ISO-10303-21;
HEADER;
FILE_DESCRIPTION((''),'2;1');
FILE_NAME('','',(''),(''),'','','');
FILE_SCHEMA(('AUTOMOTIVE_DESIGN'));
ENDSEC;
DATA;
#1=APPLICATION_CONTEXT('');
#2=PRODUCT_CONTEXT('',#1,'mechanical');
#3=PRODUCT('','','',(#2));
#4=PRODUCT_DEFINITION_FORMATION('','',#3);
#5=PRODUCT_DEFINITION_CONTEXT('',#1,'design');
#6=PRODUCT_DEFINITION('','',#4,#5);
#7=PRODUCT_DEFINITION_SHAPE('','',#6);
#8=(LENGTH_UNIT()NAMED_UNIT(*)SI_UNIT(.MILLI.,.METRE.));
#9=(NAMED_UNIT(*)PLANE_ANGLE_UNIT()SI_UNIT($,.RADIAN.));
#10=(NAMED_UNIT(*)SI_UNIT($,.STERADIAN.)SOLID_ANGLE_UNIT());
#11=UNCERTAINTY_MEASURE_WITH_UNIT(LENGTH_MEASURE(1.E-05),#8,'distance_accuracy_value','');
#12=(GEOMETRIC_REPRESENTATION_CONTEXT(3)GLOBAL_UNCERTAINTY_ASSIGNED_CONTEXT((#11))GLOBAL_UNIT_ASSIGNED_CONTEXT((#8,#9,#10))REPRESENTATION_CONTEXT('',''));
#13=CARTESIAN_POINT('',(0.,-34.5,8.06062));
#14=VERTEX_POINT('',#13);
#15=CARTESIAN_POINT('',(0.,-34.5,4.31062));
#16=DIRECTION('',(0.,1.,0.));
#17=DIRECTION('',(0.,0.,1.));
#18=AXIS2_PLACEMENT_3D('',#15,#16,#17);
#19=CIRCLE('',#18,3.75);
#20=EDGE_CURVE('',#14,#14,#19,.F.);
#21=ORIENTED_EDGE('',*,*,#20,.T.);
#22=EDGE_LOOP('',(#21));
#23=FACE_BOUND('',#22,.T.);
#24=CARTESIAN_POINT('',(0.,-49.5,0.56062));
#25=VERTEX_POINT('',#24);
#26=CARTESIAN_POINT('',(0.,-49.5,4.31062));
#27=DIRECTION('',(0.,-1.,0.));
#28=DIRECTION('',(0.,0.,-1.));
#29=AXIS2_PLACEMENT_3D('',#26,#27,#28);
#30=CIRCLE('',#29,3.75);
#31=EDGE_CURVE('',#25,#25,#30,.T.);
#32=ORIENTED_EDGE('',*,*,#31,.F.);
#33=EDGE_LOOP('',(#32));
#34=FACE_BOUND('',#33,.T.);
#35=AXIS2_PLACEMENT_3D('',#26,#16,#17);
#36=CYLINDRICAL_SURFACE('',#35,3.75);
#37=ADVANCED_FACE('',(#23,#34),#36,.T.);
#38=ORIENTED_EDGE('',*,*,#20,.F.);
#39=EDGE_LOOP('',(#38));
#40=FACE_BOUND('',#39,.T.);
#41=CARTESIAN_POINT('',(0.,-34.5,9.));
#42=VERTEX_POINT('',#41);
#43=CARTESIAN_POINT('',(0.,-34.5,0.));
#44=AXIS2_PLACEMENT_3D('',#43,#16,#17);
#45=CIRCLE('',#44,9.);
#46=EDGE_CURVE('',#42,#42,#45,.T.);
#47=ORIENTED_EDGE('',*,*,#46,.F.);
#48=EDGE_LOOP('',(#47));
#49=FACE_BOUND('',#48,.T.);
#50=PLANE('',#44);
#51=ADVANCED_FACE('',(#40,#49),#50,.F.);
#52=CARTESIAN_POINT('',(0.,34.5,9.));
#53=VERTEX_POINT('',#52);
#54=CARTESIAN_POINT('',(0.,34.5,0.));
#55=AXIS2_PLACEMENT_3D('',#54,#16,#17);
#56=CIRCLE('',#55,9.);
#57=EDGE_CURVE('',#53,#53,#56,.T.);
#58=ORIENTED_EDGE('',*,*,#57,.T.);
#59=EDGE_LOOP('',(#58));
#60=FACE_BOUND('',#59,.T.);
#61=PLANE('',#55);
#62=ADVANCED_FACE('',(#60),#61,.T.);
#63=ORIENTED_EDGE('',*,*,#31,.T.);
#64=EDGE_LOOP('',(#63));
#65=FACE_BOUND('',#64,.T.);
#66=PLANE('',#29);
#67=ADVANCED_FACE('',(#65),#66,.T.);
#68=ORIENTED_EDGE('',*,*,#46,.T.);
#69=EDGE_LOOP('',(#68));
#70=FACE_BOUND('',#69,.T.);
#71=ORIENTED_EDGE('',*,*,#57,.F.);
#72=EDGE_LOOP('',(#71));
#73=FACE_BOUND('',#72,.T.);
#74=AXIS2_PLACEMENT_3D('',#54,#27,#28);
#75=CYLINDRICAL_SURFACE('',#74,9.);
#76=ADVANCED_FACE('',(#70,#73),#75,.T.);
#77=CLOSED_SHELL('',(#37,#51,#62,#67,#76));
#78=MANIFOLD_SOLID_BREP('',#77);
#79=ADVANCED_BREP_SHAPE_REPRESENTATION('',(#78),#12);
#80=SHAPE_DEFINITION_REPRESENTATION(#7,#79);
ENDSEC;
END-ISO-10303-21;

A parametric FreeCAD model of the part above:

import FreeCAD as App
import Part
import Sketcher

V = App.Vector

doc = App.newDocument("Part")
body = doc.addObject("PartDesign::Body", "Body")

# Sketch on XZ plane
sketch1 = body.newObject("Sketcher::SketchObject", "Sketch")
sketch1.AttachmentSupport = (doc.getObject("XZ_Plane"), [""])
sketch1.MapMode = "FlatFace"
sketch1.addGeometry(Part.Circle(V(0, 0, 0), V(0, 0, 1), 9), False)
sketch1.addConstraint(Sketcher.Constraint("Coincident", 0, 3, -1, 1))
sketch1.addConstraint(Sketcher.Constraint("Diameter", 0, 18.0))
pad1 = body.newObject("PartDesign::Pad", "Pad")
pad1.Profile = sketch1
pad1.Length = 69
pad1.Midplane = True

# Sketch on XZ plane
sketch2 = body.newObject("Sketcher::SketchObject", "Sketch001")
sketch2.AttachmentSupport = (doc.getObject("XZ_Plane"), [""])
sketch2.MapMode = "FlatFace"
sketch2.AttachmentOffset = App.Placement(V(0, 0, 34.5), App.Rotation())
sketch2.addGeometry(Part.Circle(V(0, 4.3, 0), V(0, 0, 1), 3.8), False)
sketch2.addConstraint(Sketcher.Constraint("PointOnObject", 0, 3, -2))
sketch2.addConstraint(Sketcher.Constraint("Diameter", 0, 7.5))
sketch2.addConstraint(Sketcher.Constraint("DistanceY", -1, 1, 0, 3, 4.31062))
pad2 = body.newObject("PartDesign::Pad", "Pad001")
pad2.Profile = sketch2
pad2.Length = 15

doc.recompute()
